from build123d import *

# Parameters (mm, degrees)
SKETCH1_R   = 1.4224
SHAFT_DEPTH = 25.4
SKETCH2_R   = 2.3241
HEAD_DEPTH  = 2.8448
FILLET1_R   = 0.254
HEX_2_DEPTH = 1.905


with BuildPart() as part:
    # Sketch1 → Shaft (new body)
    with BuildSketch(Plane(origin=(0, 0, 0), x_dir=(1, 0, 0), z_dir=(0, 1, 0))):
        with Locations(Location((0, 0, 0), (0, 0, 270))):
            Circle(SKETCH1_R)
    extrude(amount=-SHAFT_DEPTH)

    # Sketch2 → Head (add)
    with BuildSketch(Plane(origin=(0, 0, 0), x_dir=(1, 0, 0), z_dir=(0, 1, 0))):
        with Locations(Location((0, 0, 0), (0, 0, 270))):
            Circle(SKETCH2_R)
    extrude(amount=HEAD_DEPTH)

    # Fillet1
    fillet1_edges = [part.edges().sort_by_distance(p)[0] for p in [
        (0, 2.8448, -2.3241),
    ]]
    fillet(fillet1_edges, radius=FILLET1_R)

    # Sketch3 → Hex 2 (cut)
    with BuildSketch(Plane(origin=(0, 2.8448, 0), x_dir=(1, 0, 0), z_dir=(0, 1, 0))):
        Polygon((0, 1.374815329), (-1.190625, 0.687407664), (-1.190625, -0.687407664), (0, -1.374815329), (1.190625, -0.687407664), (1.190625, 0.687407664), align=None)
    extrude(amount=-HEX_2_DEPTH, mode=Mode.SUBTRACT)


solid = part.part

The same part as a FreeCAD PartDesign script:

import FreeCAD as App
import Part
import Sketcher
Q = App.Units.Quantity


def edges_at(feature, points):
    """Names of the edges that pass closest to the given points."""
    edges = feature.Shape.Edges
    near = lambda p: min(range(len(edges)), key=lambda i: edges[i].distToShape(Part.Vertex(*p))[0])
    return sorted({f"Edge{near(p) + 1}" for p in points})

doc = App.newDocument("Part")
body = doc.addObject("PartDesign::Body", "Body")

sketch1 = body.newObject("Sketcher::SketchObject", "Sketch")
sketch1.AttachmentSupport = (doc.getObject("XZ_Plane"), [""])
sketch1.MapMode = "FlatFace"
sketch1.addGeometry(Part.Circle(App.Vector(0, 0, 0), App.Vector(0, 0, 1), 1.4), False)
sketch1.addConstraint([
    Sketcher.Constraint("Coincident", 0, 3, -1, 1),
    Sketcher.Constraint("Diameter", 0, Q("0.112 in")),
])
pad1 = body.newObject("PartDesign::Pad", "Pad")
pad1.Profile = sketch1
pad1.Length = Q("1 in")

sketch2 = body.newObject("Sketcher::SketchObject", "Sketch001")
sketch2.AttachmentSupport = (doc.getObject("XZ_Plane"), [""])
sketch2.MapMode = "FlatFace"
sketch2.addGeometry(Part.Circle(App.Vector(0, 0, 0), App.Vector(0, 0, 1), 2.3), False)
sketch2.addConstraint([
    Sketcher.Constraint("Coincident", 0, 3, -1, 1),
    Sketcher.Constraint("Diameter", 0, Q("0.183 in")),
])
pad2 = body.newObject("PartDesign::Pad", "Pad001")
pad2.Profile = sketch2
pad2.Length = Q("0.112 in")
pad2.Reversed = True
doc.recompute()

fillet = body.newObject("PartDesign::Fillet", "Fillet")
fillet.Base = (pad2, edges_at(pad2, [(0, 2.845, -2.324)]))
fillet.Radius = Q("0.01 in")

sketch3 = body.newObject("Sketcher::SketchObject", "Sketch002")
sketch3.AttachmentSupport = (doc.getObject("XZ_Plane"), [""])
sketch3.MapMode = "FlatFace"
sketch3.AttachmentOffset = App.Placement(App.Vector(0, 0, -0.112 * 25.4), App.Rotation())
sketch3.addGeometry([
    Part.LineSegment(App.Vector(0, -1.4, 0), App.Vector(-1.2, -0.7, 0)),
    Part.LineSegment(App.Vector(-1.2, -0.7, 0), App.Vector(-1.2, 0.7, 0)),
    Part.LineSegment(App.Vector(-1.2, 0.7, 0), App.Vector(0, 1.4, 0)),
    Part.LineSegment(App.Vector(0, 1.4, 0), App.Vector(1.2, 0.7, 0)),
    Part.LineSegment(App.Vector(1.2, 0.7, 0), App.Vector(1.2, -0.7, 0)),
    Part.LineSegment(App.Vector(1.2, -0.7, 0), App.Vector(0, -1.4, 0)),
], False)
sketch3.addConstraint([
    Sketcher.Constraint("Coincident", 0, 2, 1, 1),
    Sketcher.Constraint("Coincident", 1, 2, 2, 1),
    Sketcher.Constraint("Coincident", 2, 2, 3, 1),
    Sketcher.Constraint("Coincident", 3, 2, 4, 1),
    Sketcher.Constraint("Coincident", 4, 2, 5, 1),
    Sketcher.Constraint("Coincident", 5, 2, 0, 1),
    Sketcher.Constraint("Vertical", 1),
    Sketcher.Constraint("Vertical", 4),
    Sketcher.Constraint("Symmetric", 0, 2, 3, 2, -1, 1),
    Sketcher.Constraint("Symmetric", 2, 2, 5, 2, -1, 1),
    Sketcher.Constraint("PointOnObject", 2, 2, -2),
    Sketcher.Constraint("Parallel", 2, 5),
    Sketcher.Constraint("Horizontal", 1, 2, 3, 2),
    Sketcher.Constraint("Angle", 0, Q("150 deg")),
    Sketcher.Constraint("DistanceX", 0, 2, -1, 1, Q("0.046875 in")),
    Sketcher.Constraint("DistanceY", 1, 1, 1, 2, 1.374815),
])
pocket1 = body.newObject("PartDesign::Pocket", "Pocket")
pocket1.Profile = sketch3
pocket1.Length = Q("0.075 in")
pocket1.Reversed = True

doc.recompute()
